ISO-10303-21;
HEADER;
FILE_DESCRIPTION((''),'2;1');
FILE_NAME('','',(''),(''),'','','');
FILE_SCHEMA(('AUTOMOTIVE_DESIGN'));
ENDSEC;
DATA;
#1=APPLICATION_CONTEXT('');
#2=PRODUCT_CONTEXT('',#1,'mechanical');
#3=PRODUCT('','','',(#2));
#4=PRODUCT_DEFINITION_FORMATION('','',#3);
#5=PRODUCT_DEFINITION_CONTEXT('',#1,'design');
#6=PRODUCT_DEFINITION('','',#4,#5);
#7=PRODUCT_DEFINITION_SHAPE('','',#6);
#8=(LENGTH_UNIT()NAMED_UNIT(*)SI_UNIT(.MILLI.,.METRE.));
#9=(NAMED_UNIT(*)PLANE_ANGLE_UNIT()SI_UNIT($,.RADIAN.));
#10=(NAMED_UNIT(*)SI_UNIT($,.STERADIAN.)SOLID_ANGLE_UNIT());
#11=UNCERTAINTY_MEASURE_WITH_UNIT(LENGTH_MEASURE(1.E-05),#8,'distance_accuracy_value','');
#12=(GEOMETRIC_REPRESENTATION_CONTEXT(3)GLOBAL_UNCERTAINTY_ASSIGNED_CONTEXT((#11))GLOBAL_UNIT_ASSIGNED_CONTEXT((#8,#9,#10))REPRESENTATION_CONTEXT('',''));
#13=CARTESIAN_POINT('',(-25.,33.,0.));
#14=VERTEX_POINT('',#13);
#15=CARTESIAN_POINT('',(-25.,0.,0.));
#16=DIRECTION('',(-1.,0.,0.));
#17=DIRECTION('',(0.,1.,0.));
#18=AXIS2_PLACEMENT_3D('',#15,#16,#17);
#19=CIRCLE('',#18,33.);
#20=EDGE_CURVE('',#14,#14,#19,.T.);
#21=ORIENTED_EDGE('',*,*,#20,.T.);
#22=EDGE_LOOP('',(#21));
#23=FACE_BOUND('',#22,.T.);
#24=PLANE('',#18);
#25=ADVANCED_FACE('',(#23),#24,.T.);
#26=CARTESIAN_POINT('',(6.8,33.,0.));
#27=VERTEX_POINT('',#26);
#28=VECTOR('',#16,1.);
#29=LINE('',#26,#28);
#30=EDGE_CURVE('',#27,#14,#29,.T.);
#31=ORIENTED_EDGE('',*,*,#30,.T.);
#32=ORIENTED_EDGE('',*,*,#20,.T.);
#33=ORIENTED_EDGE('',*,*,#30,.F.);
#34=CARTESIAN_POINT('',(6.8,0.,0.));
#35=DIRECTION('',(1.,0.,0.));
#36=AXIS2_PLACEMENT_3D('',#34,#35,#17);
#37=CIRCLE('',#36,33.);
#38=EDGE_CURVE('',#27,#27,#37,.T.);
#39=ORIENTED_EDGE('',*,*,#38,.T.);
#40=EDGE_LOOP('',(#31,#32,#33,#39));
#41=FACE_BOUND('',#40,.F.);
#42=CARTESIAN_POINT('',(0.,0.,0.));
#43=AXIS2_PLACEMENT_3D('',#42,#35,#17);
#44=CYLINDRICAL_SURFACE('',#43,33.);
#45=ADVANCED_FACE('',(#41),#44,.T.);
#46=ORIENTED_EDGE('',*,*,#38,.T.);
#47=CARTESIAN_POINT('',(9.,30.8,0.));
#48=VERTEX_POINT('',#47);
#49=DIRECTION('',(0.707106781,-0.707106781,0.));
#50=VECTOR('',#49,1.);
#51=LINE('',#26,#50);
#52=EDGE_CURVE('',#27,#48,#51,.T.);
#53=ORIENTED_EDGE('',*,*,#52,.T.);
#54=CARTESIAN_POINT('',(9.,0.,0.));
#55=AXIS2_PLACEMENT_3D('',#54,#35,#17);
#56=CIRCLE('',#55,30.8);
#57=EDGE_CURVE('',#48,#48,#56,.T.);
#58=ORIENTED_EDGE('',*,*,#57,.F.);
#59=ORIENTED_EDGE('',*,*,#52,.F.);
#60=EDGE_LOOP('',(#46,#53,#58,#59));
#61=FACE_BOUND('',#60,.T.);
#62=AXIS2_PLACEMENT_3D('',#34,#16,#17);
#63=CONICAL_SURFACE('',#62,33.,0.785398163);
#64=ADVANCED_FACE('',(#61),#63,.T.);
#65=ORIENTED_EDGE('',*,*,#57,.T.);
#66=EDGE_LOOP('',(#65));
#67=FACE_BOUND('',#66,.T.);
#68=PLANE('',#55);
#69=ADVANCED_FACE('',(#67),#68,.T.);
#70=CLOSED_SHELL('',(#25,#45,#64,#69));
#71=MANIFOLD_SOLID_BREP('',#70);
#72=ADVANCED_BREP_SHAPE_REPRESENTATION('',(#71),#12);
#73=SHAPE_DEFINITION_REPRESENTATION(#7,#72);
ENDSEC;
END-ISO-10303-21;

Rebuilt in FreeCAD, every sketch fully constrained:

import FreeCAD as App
import Part
import Sketcher
from FreeCAD import Vector
Q = App.Units.Quantity


def edges_at(feature, points):
    """Names of the edges that pass closest to the given points."""
    edges = feature.Shape.Edges
    near = lambda p: min(range(len(edges)), key=lambda i: edges[i].distToShape(Part.Vertex(*p))[0])
    return sorted({f"Edge{near(p) + 1}" for p in points})

doc = App.newDocument("Part")
body = doc.addObject("PartDesign::Body", "Body")

# Sketch on YZ plane
sketch1 = doc.addObject("Sketcher::SketchObject", "Sketch")
body.addObject(sketch1)
sketch1.AttachmentSupport = (doc.YZ_Plane, [""])
sketch1.MapMode = "FlatFace"
sketch1.addGeometry(Part.Circle(Vector(0, 0, 0), Vector(0, 0, 1), 33), False)
sketch1.addConstraint(Sketcher.Constraint("Coincident", 0, 3, -1, 1))
sketch1.addConstraint(Sketcher.Constraint("Diameter", 0, Q("66 mm")))
pad1 = doc.addObject("PartDesign::Pad", "Pad")
body.addObject(pad1)
pad1.Profile = sketch1
pad1.Length = 9
doc.recompute()

chamfer = doc.addObject("PartDesign::Chamfer", "Chamfer")
body.addObject(chamfer)
chamfer.Base = (pad1, edges_at(pad1, [(9, -33, 0)]))
chamfer.Size = 2.2

# Sketch on YZ plane
sketch2 = doc.addObject("Sketcher::SketchObject", "Sketch001")
body.addObject(sketch2)
sketch2.AttachmentSupport = (doc.YZ_Plane, [""])
sketch2.MapMode = "FlatFace"
sketch2.addGeometry(Part.Circle(Vector(0, 0, 0), Vector(0, 0, 1), 33), False)
sketch2.addConstraint(Sketcher.Constraint("Coincident", 0, 3, -1, 1))
sketch2.addConstraint(Sketcher.Constraint("Diameter", 0, Q("66 mm")))
pad2 = doc.addObject("PartDesign::Pad", "Pad001")
body.addObject(pad2)
pad2.Profile = sketch2
pad2.Length = 25
pad2.Reversed = True

doc.recompute()
